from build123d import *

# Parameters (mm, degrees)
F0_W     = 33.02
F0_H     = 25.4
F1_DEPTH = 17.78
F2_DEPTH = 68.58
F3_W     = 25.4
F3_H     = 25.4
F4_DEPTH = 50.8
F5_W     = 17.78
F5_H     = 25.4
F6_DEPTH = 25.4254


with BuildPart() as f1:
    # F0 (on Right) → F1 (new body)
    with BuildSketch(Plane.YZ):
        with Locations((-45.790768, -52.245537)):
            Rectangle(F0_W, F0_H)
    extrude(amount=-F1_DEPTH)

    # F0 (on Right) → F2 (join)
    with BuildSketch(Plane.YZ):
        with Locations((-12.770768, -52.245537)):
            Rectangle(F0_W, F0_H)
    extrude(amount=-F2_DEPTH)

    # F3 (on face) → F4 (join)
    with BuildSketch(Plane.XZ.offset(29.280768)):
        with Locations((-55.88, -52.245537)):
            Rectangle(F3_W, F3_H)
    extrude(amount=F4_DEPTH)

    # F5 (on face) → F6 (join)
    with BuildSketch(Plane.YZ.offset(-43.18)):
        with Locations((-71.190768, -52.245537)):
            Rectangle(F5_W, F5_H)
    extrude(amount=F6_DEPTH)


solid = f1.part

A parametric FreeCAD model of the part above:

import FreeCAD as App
import Part
import Sketcher

V = App.Vector
Q = App.Units.Quantity


def add_polygon(sketch, points):
    """Adds a closed chain of lines whose ends are joined by coincident constraints."""
    first, n = sketch.GeometryCount, len(points)
    for a, b in zip(points, points[1:] + points[:1]):
        sketch.addGeometry(Part.LineSegment(App.Vector(*a, 0), App.Vector(*b, 0)), False)
    for i in range(n):
        sketch.addConstraint(Sketcher.Constraint("Coincident", first + i, 2, first + (i + 1) % n, 1))

doc = App.newDocument("Part")
body = doc.addObject("PartDesign::Body", "Body")

sketch1 = body.newObject("Sketcher::SketchObject", "Sketch")
sketch1.AttachmentSupport = (doc.getObject("YZ_Plane"), [""])
sketch1.MapMode = "FlatFace"
add_polygon(sketch1, [(-62, -40), (-62, -65), (-29, -65), (-29, -40)])
sketch1.addConstraint(Sketcher.Constraint("Vertical", 0))
sketch1.addConstraint(Sketcher.Constraint("Horizontal", 1))
sketch1.addConstraint(Sketcher.Constraint("Vertical", 2))
sketch1.addConstraint(Sketcher.Constraint("Horizontal", 3))
sketch1.addConstraint(Sketcher.Constraint("DistanceY", 0, 2, 0, 1, Q("1 in")))
sketch1.addConstraint(Sketcher.Constraint("DistanceX", 1, 1, 1, 2, Q("1.3 in")))
sketch1.addConstraint(Sketcher.Constraint("DistanceX", 0, 2, -1, 1, Q("62.300768 mm")))
sketch1.addConstraint(Sketcher.Constraint("DistanceY", 0, 2, -1, 1, Q("64.945537 mm")))
pad1 = body.newObject("PartDesign::Pad", "Pad")
pad1.Profile = sketch1
pad1.Length = Q("0.7 in")
pad1.Reversed = True

sketch2 = body.newObject("Sketcher::SketchObject", "Sketch001")
sketch2.AttachmentSupport = (doc.getObject("YZ_Plane"), [""])
sketch2.MapMode = "FlatFace"
add_polygon(sketch2, [(-29, -40), (-29, -65), (4, -65), (4, -40)])
sketch2.addConstraint(Sketcher.Constraint("Vertical", 0))
sketch2.addConstraint(Sketcher.Constraint("Horizontal", 1))
sketch2.addConstraint(Sketcher.Constraint("Vertical", 2))
sketch2.addConstraint(Sketcher.Constraint("Horizontal", 3))
sketch2.addConstraint(Sketcher.Constraint("DistanceY", 0, 2, 0, 1, Q("1 in")))
sketch2.addConstraint(Sketcher.Constraint("DistanceX", 1, 1, 1, 2, Q("1.3 in")))
sketch2.addConstraint(Sketcher.Constraint("DistanceX", -1, 1, 1, 2, Q("3.739232 mm")))
sketch2.addConstraint(Sketcher.Constraint("DistanceY", 0, 2, -1, 1, Q("64.945537 mm")))
pad2 = body.newObject("PartDesign::Pad", "Pad001")
pad2.Profile = sketch2
pad2.Length = Q("2.7 in")
pad2.Reversed = True

sketch3 = body.newObject("Sketcher::SketchObject", "Sketch002")
sketch3.AttachmentSupport = (doc.getObject("XZ_Plane"), [""])
sketch3.MapMode = "FlatFace"
sketch3.AttachmentOffset = App.Placement(V(0, 0, 29.280768), App.Rotation())
add_polygon(sketch3, [(-69, -40), (-69, -65), (-43, -65), (-43, -40)])
sketch3.addConstraint(Sketcher.Constraint("Vertical", 0))
sketch3.addConstraint(Sketcher.Constraint("Horizontal", 1))
sketch3.addConstraint(Sketcher.Constraint("Vertical", 2))
sketch3.addConstraint(Sketcher.Constraint("Horizontal", 3))
sketch3.addConstraint(Sketcher.Constraint("Equal", 3, 0))
sketch3.addConstraint(Sketcher.Constraint("DistanceX", 1, 1, 1, 2, Q("1 in")))
sketch3.addConstraint(Sketcher.Constraint("DistanceX", 0, 2, -1, 1, Q("2.7 in")))
sketch3.addConstraint(Sketcher.Constraint("DistanceY", 0, 2, -1, 1, Q("64.945537 mm")))
pad3 = body.newObject("PartDesign::Pad", "Pad002")
pad3.Profile = sketch3
pad3.Length = Q("2 in")

sketch4 = body.newObject("Sketcher::SketchObject", "Sketch003")
sketch4.AttachmentSupport = (doc.getObject("YZ_Plane"), [""])
sketch4.MapMode = "FlatFace"
sketch4.AttachmentOffset = App.Placement(V(0, 0, -1.7 * 25.4), App.Rotation())
add_polygon(sketch4, [(-80, -40), (-80, -65), (-62, -65), (-62, -40)])
sketch4.addConstraint(Sketcher.Constraint("Vertical", 0))
sketch4.addConstraint(Sketcher.Constraint("Horizontal", 1))
sketch4.addConstraint(Sketcher.Constraint("Vertical", 2))
sketch4.addConstraint(Sketcher.Constraint("Horizontal", 3))
sketch4.addConstraint(Sketcher.Constraint("DistanceY", 0, 2, 0, 1, Q("1 in")))
sketch4.addConstraint(Sketcher.Constraint("DistanceX", 1, 1, 1, 2, Q("0.7 in")))
sketch4.addConstraint(Sketcher.Constraint("DistanceX", 0, 2, -1, 1, Q("80.080768 mm")))
sketch4.addConstraint(Sketcher.Constraint("DistanceY", 0, 2, -1, 1, Q("64.945537 mm")))
pad4 = body.newObject("PartDesign::Pad", "Pad003")
pad4.Profile = sketch4
pad4.Length = Q("1.001 in")

doc.recompute()
